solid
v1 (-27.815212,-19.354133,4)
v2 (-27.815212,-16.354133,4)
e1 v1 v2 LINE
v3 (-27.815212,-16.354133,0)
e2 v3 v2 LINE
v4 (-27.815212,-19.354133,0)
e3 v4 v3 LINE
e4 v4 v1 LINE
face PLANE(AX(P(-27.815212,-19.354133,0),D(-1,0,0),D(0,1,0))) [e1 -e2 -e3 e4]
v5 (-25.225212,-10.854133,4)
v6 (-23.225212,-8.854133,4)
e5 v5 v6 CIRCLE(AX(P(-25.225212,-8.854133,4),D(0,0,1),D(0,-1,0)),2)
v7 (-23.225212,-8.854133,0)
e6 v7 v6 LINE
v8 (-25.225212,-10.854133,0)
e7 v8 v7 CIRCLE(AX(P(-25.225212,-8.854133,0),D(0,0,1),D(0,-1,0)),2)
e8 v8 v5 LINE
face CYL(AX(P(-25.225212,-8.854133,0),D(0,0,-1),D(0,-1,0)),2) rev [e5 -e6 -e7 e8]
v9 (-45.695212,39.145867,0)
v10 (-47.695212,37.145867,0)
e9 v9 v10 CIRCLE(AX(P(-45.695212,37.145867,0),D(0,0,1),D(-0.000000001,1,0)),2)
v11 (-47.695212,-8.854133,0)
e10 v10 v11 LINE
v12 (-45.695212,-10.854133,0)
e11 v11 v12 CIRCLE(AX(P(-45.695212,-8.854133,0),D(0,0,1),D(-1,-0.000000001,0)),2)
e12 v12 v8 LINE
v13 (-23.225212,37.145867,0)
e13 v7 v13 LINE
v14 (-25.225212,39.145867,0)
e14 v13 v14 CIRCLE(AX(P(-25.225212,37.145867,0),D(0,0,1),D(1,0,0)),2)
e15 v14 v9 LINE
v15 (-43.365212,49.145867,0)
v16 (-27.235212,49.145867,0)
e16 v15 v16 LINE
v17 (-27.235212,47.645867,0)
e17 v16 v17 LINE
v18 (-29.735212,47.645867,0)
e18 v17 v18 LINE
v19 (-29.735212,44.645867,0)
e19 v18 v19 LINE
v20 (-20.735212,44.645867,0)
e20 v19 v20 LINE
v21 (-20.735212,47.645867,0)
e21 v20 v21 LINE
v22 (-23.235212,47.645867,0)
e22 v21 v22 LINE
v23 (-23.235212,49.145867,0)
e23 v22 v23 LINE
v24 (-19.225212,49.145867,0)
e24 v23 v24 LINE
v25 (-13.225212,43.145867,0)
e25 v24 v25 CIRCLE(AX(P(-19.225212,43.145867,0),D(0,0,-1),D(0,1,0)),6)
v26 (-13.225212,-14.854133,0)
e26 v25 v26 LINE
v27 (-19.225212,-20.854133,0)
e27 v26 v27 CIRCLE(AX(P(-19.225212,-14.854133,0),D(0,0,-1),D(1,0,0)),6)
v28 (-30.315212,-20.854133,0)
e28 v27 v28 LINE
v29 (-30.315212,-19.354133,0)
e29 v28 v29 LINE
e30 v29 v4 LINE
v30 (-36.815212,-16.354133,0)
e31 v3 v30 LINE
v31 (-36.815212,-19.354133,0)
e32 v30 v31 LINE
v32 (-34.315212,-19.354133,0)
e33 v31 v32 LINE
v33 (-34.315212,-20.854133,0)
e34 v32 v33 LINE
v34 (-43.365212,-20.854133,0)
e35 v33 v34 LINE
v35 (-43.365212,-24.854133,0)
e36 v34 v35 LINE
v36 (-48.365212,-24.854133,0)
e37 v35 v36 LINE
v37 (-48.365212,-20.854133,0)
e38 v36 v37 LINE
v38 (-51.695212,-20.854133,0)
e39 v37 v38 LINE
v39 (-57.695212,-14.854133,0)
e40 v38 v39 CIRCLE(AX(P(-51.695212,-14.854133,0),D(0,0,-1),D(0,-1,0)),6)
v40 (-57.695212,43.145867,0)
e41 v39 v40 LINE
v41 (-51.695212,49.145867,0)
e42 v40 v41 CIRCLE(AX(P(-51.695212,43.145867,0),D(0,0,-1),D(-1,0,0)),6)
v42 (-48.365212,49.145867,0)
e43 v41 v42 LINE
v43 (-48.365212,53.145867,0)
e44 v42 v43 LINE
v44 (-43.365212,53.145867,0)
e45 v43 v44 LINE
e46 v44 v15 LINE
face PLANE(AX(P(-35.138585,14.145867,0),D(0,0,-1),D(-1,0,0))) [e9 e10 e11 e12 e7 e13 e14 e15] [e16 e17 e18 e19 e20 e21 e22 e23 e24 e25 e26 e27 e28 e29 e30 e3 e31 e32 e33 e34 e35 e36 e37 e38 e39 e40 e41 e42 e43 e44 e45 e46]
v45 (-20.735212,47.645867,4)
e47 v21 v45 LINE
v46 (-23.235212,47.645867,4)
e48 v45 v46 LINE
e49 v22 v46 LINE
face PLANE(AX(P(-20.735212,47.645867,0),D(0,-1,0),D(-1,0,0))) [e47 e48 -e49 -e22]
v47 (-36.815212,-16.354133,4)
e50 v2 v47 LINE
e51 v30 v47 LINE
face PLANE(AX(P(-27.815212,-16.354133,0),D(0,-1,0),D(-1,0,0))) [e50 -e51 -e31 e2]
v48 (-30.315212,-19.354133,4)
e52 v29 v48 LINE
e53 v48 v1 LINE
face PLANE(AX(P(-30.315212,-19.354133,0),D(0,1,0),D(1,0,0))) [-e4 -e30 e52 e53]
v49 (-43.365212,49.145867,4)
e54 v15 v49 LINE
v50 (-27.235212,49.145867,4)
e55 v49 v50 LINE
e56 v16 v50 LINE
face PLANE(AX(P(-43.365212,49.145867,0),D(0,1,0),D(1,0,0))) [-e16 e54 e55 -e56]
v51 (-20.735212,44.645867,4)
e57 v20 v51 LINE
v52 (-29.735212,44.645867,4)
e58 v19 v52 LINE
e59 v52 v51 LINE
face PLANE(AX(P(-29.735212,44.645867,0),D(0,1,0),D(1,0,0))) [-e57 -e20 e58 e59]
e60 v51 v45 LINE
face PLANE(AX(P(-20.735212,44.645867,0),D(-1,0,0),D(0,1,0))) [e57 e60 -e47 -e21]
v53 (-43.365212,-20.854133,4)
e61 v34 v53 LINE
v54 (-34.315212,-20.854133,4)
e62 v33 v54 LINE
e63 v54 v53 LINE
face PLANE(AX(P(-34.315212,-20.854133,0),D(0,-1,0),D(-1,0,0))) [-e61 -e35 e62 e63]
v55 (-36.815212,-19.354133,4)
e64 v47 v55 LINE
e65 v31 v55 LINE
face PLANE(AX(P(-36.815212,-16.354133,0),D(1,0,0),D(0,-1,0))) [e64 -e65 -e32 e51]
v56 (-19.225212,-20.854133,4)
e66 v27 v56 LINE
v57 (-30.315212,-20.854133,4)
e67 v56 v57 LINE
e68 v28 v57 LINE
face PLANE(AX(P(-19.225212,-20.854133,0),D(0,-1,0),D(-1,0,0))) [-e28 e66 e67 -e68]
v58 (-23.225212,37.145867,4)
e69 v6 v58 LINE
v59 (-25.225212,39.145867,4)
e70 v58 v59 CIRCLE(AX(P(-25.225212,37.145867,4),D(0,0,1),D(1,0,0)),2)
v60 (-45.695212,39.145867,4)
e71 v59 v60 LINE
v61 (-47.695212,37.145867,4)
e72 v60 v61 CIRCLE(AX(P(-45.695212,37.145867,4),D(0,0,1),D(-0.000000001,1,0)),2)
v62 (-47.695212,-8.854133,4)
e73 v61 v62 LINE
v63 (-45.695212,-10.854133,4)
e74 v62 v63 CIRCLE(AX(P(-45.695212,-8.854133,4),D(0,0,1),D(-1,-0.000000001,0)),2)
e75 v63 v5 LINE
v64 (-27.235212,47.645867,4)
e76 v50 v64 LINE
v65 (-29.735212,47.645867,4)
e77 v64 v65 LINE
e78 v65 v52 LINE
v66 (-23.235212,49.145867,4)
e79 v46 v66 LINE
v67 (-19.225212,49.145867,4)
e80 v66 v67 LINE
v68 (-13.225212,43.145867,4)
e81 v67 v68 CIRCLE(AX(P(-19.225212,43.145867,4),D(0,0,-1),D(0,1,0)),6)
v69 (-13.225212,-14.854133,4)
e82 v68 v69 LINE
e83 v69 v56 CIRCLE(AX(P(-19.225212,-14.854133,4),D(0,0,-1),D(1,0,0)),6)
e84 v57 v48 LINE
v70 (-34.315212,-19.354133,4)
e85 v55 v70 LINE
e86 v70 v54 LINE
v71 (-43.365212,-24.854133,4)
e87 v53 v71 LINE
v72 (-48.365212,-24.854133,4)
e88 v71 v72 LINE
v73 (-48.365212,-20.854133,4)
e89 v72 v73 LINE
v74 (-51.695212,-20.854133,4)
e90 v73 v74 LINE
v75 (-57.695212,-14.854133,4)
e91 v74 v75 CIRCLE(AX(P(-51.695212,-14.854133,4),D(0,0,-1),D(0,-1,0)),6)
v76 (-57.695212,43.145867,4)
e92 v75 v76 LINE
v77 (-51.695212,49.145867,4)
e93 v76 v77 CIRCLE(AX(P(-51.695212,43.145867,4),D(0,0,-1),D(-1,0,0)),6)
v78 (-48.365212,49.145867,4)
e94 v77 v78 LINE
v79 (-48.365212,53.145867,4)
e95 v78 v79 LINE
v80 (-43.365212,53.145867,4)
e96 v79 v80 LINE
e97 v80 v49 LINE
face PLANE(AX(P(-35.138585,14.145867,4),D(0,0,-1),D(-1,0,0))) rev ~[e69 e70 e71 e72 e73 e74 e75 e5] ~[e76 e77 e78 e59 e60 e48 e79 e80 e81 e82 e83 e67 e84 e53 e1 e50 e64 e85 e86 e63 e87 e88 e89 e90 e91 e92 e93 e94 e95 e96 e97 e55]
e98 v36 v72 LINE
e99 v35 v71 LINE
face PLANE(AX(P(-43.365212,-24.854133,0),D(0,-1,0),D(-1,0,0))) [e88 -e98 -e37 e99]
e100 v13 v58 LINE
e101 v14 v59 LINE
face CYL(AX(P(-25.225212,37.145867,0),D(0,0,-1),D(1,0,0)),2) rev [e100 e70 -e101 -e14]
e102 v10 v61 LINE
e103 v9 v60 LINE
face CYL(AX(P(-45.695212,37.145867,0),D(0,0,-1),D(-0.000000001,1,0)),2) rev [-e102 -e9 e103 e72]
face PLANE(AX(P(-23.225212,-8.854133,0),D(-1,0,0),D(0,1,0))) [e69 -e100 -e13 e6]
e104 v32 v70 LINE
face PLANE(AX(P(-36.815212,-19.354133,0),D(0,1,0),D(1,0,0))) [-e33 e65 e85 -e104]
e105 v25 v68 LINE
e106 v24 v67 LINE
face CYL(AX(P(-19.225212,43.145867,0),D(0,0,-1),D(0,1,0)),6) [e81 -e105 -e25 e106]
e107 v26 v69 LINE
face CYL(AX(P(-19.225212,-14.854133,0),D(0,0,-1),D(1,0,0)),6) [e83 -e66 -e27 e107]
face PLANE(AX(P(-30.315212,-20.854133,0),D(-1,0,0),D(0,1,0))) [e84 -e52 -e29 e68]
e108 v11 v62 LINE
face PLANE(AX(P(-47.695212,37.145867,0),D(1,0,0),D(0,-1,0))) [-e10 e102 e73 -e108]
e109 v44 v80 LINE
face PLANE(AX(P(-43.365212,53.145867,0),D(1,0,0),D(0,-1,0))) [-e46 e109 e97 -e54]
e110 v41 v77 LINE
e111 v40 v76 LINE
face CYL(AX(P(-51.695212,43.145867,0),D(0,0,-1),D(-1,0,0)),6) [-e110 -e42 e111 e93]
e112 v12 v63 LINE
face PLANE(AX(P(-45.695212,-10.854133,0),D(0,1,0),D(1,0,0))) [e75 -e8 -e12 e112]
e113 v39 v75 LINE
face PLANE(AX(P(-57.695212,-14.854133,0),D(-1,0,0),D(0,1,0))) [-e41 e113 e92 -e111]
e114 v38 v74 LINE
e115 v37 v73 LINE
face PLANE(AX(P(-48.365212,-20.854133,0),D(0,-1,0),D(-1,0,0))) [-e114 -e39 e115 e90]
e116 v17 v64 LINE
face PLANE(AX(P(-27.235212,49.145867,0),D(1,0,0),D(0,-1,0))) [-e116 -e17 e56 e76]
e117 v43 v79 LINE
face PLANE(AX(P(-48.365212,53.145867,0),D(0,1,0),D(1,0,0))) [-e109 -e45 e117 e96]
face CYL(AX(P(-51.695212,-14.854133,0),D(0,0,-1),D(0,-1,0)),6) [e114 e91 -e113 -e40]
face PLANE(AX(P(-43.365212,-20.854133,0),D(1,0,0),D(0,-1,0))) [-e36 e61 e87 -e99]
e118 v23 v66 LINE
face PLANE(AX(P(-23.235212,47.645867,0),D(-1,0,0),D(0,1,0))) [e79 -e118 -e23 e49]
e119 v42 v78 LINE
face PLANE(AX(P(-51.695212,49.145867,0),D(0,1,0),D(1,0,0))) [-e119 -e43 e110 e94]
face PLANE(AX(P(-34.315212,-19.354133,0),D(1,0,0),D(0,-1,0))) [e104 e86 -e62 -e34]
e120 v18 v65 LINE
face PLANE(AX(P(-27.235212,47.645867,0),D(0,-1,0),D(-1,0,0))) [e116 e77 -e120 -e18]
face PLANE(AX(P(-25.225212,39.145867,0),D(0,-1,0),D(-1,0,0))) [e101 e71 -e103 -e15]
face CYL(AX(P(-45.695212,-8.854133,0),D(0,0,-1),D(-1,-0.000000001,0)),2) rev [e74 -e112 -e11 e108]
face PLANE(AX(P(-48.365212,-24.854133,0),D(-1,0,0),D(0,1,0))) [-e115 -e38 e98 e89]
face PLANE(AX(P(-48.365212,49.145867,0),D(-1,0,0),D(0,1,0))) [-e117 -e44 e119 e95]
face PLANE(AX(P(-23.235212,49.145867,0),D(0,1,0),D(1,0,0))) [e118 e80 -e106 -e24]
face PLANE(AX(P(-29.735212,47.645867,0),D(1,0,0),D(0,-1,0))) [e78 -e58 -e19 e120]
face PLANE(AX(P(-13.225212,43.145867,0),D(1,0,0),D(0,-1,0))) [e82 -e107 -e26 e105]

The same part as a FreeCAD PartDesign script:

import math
import FreeCAD as App
import Part
import Sketcher
from FreeCAD import Vector
Q = App.Units.Quantity

doc = App.newDocument("Part")
body = doc.addObject("PartDesign::Body", "Body")

# Sketch on XY plane
sketch1 = doc.addObject("Sketcher::SketchObject", "Sketch")
body.addObject(sketch1)
sketch1.AttachmentSupport = (doc.XY_Plane, [""])
sketch1.MapMode = "FlatFace"
sketch1.addGeometry([
    Part.LineSegment(Vector(-51.695212, -20.854133, 0), Vector(-48.365212, -20.854133, 0)),  # 0
    Part.LineSegment(Vector(-48.365212, -20.854133, 0), Vector(-48.365212, -24.854133, 0)),  # 1
    Part.LineSegment(Vector(-48.365212, -24.854133, 0), Vector(-43.365212, -24.854133, 0)),  # 2
    Part.LineSegment(Vector(-43.365212, -24.854133, 0), Vector(-43.365212, -20.854133, 0)),  # 3
    Part.LineSegment(Vector(-43.365212, -20.854133, 0), Vector(-34.315212, -20.854133, 0)),  # 4
    Part.LineSegment(Vector(-34.315212, -20.854133, 0), Vector(-34.315212, -19.354133, 0)),  # 5
    Part.LineSegment(Vector(-34.315212, -19.354133, 0), Vector(-36.815212, -19.354133, 0)),  # 6
    Part.LineSegment(Vector(-36.815212, -19.354133, 0), Vector(-36.815212, -16.354133, 0)),  # 7
    Part.LineSegment(Vector(-36.815212, -16.354133, 0), Vector(-27.815212, -16.354133, 0)),  # 8
    Part.LineSegment(Vector(-27.815212, -16.354133, 0), Vector(-27.815212, -19.354133, 0)),  # 9
    Part.LineSegment(Vector(-27.815212, -19.354133, 0), Vector(-30.315212, -19.354133, 0)),  # 10
    Part.LineSegment(Vector(-30.315212, -19.354133, 0), Vector(-30.315212, -20.854133, 0)),  # 11
    Part.LineSegment(Vector(-30.315212, -20.854133, 0), Vector(-19.225212, -20.854133, 0)),  # 12
    Part.ArcOfCircle(Part.Circle(Vector(-19.225212, -14.854133, 0), Vector(0, 0, 1), 6), math.radians(-90), math.radians(0)),  # 13
    Part.LineSegment(Vector(-13.225212, -14.854133, 0), Vector(-13.225212, 43.145867, 0)),  # 14
    Part.ArcOfCircle(Part.Circle(Vector(-19.225212, 43.145867, 0), Vector(0, 0, 1), 6), math.radians(0), math.radians(90)),  # 15
    Part.LineSegment(Vector(-19.225212, 49.145867, 0), Vector(-23.235212, 49.145867, 0)),  # 16
    Part.LineSegment(Vector(-23.235212, 49.145867, 0), Vector(-23.235212, 47.645867, 0)),  # 17
    Part.LineSegment(Vector(-23.235212, 47.645867, 0), Vector(-20.735212, 47.645867, 0)),  # 18
    Part.LineSegment(Vector(-20.735212, 47.645867, 0), Vector(-20.735212, 44.645867, 0)),  # 19
    Part.LineSegment(Vector(-20.735212, 44.645867, 0), Vector(-29.735212, 44.645867, 0)),  # 20
    Part.LineSegment(Vector(-29.735212, 44.645867, 0), Vector(-29.735212, 47.645867, 0)),  # 21
    Part.LineSegment(Vector(-29.735212, 47.645867, 0), Vector(-27.235212, 47.645867, 0)),  # 22
    Part.LineSegment(Vector(-27.235212, 47.645867, 0), Vector(-27.235212, 49.145867, 0)),  # 23
    Part.LineSegment(Vector(-27.235212, 49.145867, 0), Vector(-43.365212, 49.145867, 0)),  # 24
    Part.LineSegment(Vector(-43.365212, 49.145867, 0), Vector(-43.365212, 53.145867, 0)),  # 25
    Part.LineSegment(Vector(-43.365212, 53.145867, 0), Vector(-48.365212, 53.145867, 0)),  # 26
    Part.LineSegment(Vector(-48.365212, 53.145867, 0), Vector(-48.365212, 49.145867, 0)),  # 27
    Part.LineSegment(Vector(-48.365212, 49.145867, 0), Vector(-51.695212, 49.145867, 0)),  # 28
    Part.ArcOfCircle(Part.Circle(Vector(-51.695212, 43.145867, 0), Vector(0, 0, 1), 6), math.radians(90), math.radians(180)),  # 29
    Part.LineSegment(Vector(-57.695212, 43.145867, 0), Vector(-57.695212, -14.854133, 0)),  # 30
    Part.ArcOfCircle(Part.Circle(Vector(-51.695212, -14.854133, 0), Vector(0, 0, 1), 6), math.radians(180), math.radians(270)),  # 31
    Part.LineSegment(Vector(-47.695212, -8.854133, 0), Vector(-47.695212, 37.145867, 0)),  # 32
    Part.ArcOfCircle(Part.Circle(Vector(-45.695212, 37.145867, 0), Vector(0, 0, 1), 2), math.radians(90), math.radians(180)),  # 33
    Part.LineSegment(Vector(-45.695212, 39.145867, 0), Vector(-25.225212, 39.145867, 0)),  # 34
    Part.ArcOfCircle(Part.Circle(Vector(-25.225212, 37.145867, 0), Vector(0, 0, 1), 2), math.radians(0), math.radians(90)),  # 35
    Part.LineSegment(Vector(-23.225212, 37.145867, 0), Vector(-23.225212, -8.854133, 0)),  # 36
    Part.ArcOfCircle(Part.Circle(Vector(-25.225212, -8.854133, 0), Vector(0, 0, 1), 2), math.radians(-90), math.radians(0)),  # 37
    Part.LineSegment(Vector(-25.225212, -10.854133, 0), Vector(-45.695212, -10.854133, 0)),  # 38
    Part.ArcOfCircle(Part.Circle(Vector(-45.695212, -8.854133, 0), Vector(0, 0, 1), 2), math.radians(-180), math.radians(-90)),  # 39
], False)
sketch1.addConstraint([
    Sketcher.Constraint("Coincident", 0, 2, 1, 1),
    Sketcher.Constraint("Coincident", 1, 2, 2, 1),
    Sketcher.Constraint("Coincident", 2, 2, 3, 1),
    Sketcher.Constraint("Coincident", 3, 2, 4, 1),
    Sketcher.Constraint("Coincident", 4, 2, 5, 1),
    Sketcher.Constraint("Coincident", 5, 2, 6, 1),
    Sketcher.Constraint("Coincident", 6, 2, 7, 1),
    Sketcher.Constraint("Coincident", 7, 2, 8, 1),
    Sketcher.Constraint("Coincident", 8, 2, 9, 1),
    Sketcher.Constraint("Coincident", 9, 2, 10, 1),
    Sketcher.Constraint("Coincident", 10, 2, 11, 1),
    Sketcher.Constraint("Coincident", 11, 2, 12, 1),
    Sketcher.Constraint("Tangent", 12, 2, 13, 1),
    Sketcher.Constraint("Tangent", 13, 2, 14, 1),
    Sketcher.Constraint("Tangent", 14, 2, 15, 1),
    Sketcher.Constraint("Tangent", 15, 2, 16, 1),
    Sketcher.Constraint("Coincident", 16, 2, 17, 1),
    Sketcher.Constraint("Coincident", 17, 2, 18, 1),
    Sketcher.Constraint("Coincident", 18, 2, 19, 1),
    Sketcher.Constraint("Coincident", 19, 2, 20, 1),
    Sketcher.Constraint("Coincident", 20, 2, 21, 1),
    Sketcher.Constraint("Coincident", 21, 2, 22, 1),
    Sketcher.Constraint("Coincident", 22, 2, 23, 1),
    Sketcher.Constraint("Coincident", 23, 2, 24, 1),
    Sketcher.Constraint("Coincident", 24, 2, 25, 1),
    Sketcher.Constraint("Coincident", 25, 2, 26, 1),
    Sketcher.Constraint("Coincident", 26, 2, 27, 1),
    Sketcher.Constraint("Coincident", 27, 2, 28, 1),
    Sketcher.Constraint("Tangent", 28, 2, 29, 1),
    Sketcher.Constraint("Tangent", 29, 2, 30, 1),
    Sketcher.Constraint("Tangent", 30, 2, 31, 1),
    Sketcher.Constraint("Tangent", 31, 2, 0, 1),
    Sketcher.Constraint("Tangent", 32, 2, 33, 2),
    Sketcher.Constraint("Tangent", 33, 1, 34, 1),
    Sketcher.Constraint("Tangent", 34, 2, 35, 2),
    Sketcher.Constraint("Tangent", 35, 1, 36, 1),
    Sketcher.Constraint("Tangent", 36, 2, 37, 2),
    Sketcher.Constraint("Tangent", 37, 1, 38, 1),
    Sketcher.Constraint("Tangent", 38, 2, 39, 2),
    Sketcher.Constraint("Tangent", 39, 1, 32, 1),
    Sketcher.Constraint("Horizontal", 0),
    Sketcher.Constraint("Vertical", 1),
    Sketcher.Constraint("Horizontal", 2),
    Sketcher.Constraint("Vertical", 3),
    Sketcher.Constraint("Horizontal", 4),
    Sketcher.Constraint("Vertical", 5),
    Sketcher.Constraint("Horizontal", 6),
    Sketcher.Constraint("Vertical", 7),
    Sketcher.Constraint("Horizontal", 8),
    Sketcher.Constraint("Vertical", 9),
    Sketcher.Constraint("Horizontal", 10),
    Sketcher.Constraint("Vertical", 11),
    Sketcher.Constraint("Horizontal", 12),
    Sketcher.Constraint("Vertical", 14),
    Sketcher.Constraint("Horizontal", 16),
    Sketcher.Constraint("Vertical", 17),
    Sketcher.Constraint("Horizontal", 18),
    Sketcher.Constraint("Vertical", 19),
    Sketcher.Constraint("Horizontal", 20),
    Sketcher.Constraint("Vertical", 21),
    Sketcher.Constraint("Horizontal", 22),
    Sketcher.Constraint("Vertical", 23),
    Sketcher.Constraint("Horizontal", 24),
    Sketcher.Constraint("Vertical", 25),
    Sketcher.Constraint("Horizontal", 26),
    Sketcher.Constraint("Vertical", 27),
    Sketcher.Constraint("Horizontal", 28),
    Sketcher.Constraint("Vertical", 30),
    Sketcher.Constraint("Vertical", 32),
    Sketcher.Constraint("Horizontal", 34),
    Sketcher.Constraint("Vertical", 36),
    Sketcher.Constraint("Horizontal", 38),
    Sketcher.Constraint("Equal", 13, 15),
    Sketcher.Constraint("Equal", 15, 29),
    Sketcher.Constraint("Equal", 29, 31),
    Sketcher.Constraint("Equal", 33, 35),
    Sketcher.Constraint("Equal", 35, 37),
    Sketcher.Constraint("Equal", 37, 39),
    Sketcher.Constraint("Horizontal", 15, 3, 29, 3),
    Sketcher.Constraint("Horizontal", 13, 3, 31, 3),
    Sketcher.Constraint("Horizontal", 0, 2, 3, 2),
    Sketcher.Constraint("Horizontal", 6, 2, 9, 2),
    Sketcher.Constraint("Horizontal", 18, 2, 21, 2),
    Sketcher.Constraint("Horizontal", 16, 2, 23, 2),
    Sketcher.Constraint("Vertical", 3, 2, 24, 2),
    Sketcher.Constraint("Vertical", 1, 2, 26, 2),
    Sketcher.Constraint("Equal", 6, 10),
    Sketcher.Constraint("Equal", 10, 18),
    Sketcher.Constraint("Equal", 8, 20),
    Sketcher.Constraint("Equal", 18, 22),
    Sketcher.Constraint("Equal", 11, 17),
    Sketcher.Constraint("Equal", 9, 19),
    Sketcher.Constraint("Equal", 3, 25),
    Sketcher.Constraint("Radius", 13, Q("6 mm")),
    Sketcher.Constraint("Radius", 33, Q("2 mm")),
    Sketcher.Constraint("DistanceX", 2, 1, 2, 2, Q("5 mm")),
    Sketcher.Constraint("DistanceX", 8, 1, 8, 2, Q("9 mm")),
    Sketcher.Constraint("DistanceY", 1, 2, 1, 1, Q("4 mm")),
    Sketcher.Constraint("DistanceY", 7, 1, 7, 2, Q("3 mm")),
    Sketcher.Constraint("DistanceY", 14, 1, 14, 2, Q("58 mm")),
    Sketcher.Constraint("DistanceY", 32, 1, 32, 2, Q("46 mm")),
    Sketcher.Constraint("DistanceX", 6, 2, 6, 1, Q("2.5 mm")),
    Sketcher.Constraint("DistanceY", 5, 1, 5, 2, Q("1.5 mm")),
    Sketcher.Constraint("DistanceX", 29, 3, 33, 3, Q("6 mm")),
    Sketcher.Constraint("DistanceY", 33, 3, 29, 3, Q("6 mm")),
    Sketcher.Constraint("DistanceX", 35, 3, 15, 3, Q("6 mm")),
    Sketcher.Constraint("DistanceX", 0, 1, 0, 2, Q("3.33 mm")),
    Sketcher.Constraint("DistanceX", 4, 1, 4, 2, Q("9.05 mm")),
    Sketcher.Constraint("DistanceX", 12, 1, 12, 2, Q("11.09 mm")),
    Sketcher.Constraint("DistanceX", 16, 2, 16, 1, Q("4.01 mm")),
    Sketcher.Constraint("DistanceX", 13, 3, -1, 1, Q("19.225212 mm")),
    Sketcher.Constraint("DistanceY", 13, 3, -1, 1, Q("14.854133 mm")),
])
pad1 = doc.addObject("PartDesign::Pad", "Pad")
body.addObject(pad1)
pad1.Profile = sketch1
pad1.Length = 4

doc.recompute()
